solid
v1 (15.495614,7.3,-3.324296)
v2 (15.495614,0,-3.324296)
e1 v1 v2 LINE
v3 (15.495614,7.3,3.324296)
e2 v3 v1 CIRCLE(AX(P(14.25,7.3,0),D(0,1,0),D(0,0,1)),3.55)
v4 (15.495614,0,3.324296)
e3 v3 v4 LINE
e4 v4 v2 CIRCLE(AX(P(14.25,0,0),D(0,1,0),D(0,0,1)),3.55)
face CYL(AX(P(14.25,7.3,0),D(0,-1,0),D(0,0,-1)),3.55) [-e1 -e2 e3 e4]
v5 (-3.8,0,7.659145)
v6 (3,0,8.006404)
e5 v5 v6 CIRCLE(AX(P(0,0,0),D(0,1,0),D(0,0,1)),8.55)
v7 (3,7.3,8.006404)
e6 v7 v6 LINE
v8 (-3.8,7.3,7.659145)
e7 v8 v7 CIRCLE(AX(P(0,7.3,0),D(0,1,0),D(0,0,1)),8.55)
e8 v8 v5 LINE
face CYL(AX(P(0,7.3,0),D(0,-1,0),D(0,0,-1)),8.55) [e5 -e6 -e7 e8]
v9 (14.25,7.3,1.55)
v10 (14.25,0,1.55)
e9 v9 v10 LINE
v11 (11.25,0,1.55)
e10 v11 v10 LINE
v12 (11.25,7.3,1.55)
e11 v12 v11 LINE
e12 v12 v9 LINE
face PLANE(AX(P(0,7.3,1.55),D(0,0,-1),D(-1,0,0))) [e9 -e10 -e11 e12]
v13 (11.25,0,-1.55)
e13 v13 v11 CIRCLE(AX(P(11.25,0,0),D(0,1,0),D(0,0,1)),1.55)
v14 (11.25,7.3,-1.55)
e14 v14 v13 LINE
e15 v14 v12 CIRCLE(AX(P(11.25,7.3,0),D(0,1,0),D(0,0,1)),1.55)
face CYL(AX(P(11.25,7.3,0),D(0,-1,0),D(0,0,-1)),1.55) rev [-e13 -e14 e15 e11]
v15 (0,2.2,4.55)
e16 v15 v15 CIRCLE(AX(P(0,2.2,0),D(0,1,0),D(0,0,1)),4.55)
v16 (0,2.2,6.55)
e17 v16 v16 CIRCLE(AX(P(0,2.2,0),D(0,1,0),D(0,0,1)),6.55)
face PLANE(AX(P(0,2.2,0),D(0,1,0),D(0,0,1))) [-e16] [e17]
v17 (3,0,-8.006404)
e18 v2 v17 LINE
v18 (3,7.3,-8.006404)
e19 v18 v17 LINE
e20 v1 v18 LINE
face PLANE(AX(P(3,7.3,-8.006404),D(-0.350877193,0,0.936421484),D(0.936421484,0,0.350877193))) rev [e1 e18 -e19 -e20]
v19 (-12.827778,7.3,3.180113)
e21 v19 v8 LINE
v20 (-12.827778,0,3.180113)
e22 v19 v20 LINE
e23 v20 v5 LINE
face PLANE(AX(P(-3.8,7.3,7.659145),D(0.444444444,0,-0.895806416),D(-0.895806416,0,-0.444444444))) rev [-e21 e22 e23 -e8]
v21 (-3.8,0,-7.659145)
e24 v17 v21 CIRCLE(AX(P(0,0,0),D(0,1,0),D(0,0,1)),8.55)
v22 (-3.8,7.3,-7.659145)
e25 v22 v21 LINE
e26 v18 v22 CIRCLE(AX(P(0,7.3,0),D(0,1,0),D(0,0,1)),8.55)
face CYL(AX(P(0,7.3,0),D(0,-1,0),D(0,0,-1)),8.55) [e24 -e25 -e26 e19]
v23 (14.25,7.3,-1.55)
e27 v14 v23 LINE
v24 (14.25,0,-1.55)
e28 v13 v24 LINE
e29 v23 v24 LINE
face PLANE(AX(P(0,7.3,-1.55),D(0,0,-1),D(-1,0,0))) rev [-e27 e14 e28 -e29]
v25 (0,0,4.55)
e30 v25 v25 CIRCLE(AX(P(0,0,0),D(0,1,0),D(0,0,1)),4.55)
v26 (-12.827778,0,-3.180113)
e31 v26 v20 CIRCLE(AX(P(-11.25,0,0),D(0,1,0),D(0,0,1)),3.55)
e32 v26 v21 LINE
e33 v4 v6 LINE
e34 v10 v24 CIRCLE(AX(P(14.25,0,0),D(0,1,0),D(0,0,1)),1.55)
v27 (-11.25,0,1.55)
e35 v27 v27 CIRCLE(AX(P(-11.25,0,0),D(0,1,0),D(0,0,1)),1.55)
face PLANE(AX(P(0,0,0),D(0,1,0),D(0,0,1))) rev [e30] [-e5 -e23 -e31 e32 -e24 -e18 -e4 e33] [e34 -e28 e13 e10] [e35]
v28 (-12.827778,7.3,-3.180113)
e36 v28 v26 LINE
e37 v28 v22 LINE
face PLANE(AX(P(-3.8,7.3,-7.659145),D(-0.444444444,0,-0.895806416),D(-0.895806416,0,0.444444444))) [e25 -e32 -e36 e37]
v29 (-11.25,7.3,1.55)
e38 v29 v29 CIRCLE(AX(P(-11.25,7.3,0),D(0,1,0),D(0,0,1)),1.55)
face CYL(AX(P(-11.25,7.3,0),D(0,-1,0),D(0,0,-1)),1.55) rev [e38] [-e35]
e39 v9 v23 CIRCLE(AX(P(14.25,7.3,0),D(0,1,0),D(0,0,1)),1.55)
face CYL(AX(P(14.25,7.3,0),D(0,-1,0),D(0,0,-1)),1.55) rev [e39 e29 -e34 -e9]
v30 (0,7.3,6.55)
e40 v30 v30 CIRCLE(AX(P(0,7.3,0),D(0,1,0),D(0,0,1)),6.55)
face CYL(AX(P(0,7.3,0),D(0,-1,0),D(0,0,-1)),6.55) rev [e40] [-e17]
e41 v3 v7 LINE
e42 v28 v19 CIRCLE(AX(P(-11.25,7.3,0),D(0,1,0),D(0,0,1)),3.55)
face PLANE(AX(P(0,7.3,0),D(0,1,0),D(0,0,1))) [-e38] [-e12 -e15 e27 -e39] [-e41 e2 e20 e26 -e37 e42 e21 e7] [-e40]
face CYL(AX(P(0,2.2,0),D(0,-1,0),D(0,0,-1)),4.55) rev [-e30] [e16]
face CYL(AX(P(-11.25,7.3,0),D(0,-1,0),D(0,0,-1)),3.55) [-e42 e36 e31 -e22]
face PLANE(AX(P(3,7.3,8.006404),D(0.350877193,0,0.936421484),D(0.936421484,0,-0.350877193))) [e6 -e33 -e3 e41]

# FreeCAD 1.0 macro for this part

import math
import FreeCAD as App
import Part
import Sketcher

V = App.Vector

doc = App.newDocument("Part")
body = doc.addObject("PartDesign::Body", "Body")

# Sketch on XZ plane
sketch1 = body.newObject("Sketcher::SketchObject", "Sketch")
sketch1.AttachmentSupport = (doc.getObject("XZ_Plane"), [""])
sketch1.MapMode = "FlatFace"
sketch1.addGeometry([
    Part.ArcOfCircle(Part.Circle(V(0, 0, 0), V(0, 0, 1), 8.55), math.radians(-116), math.radians(-69)),  # 0
    Part.LineSegment(V(-3.8, -7.66, 0), V(-12.83, -3.18, 0)),  # 1
    Part.ArcOfCircle(Part.Circle(V(-11.25, 0, 0), V(0, 0, 1), 3.55), math.radians(116), math.radians(244)),  # 2
    Part.LineSegment(V(-12.83, 3.18, 0), V(-3.8, 7.66, 0)),  # 3
    Part.ArcOfCircle(Part.Circle(V(0, 0, 0), V(0, 0, 1), 8.55), math.radians(69), math.radians(116)),  # 4
    Part.LineSegment(V(3, 8.01, 0), V(15.5, 3.32, 0)),  # 5
    Part.ArcOfCircle(Part.Circle(V(14.25, 0, 0), V(0, 0, 1), 3.55), math.radians(-69), math.radians(69)),  # 6
    Part.LineSegment(V(15.5, -3.32, 0), V(3, -8.01, 0)),  # 7
    Part.ArcOfCircle(Part.Circle(V(14.25, 0, 0), V(0, 0, 1), 1.55), math.radians(69), math.radians(90)),  # 8
    Part.LineSegment(V(14.25, 1.55, 0), V(11.25, 1.55, 0)),  # 9
    Part.ArcOfCircle(Part.Circle(V(11.25, 0, 0), V(0, 0, 1), 1.55), math.radians(90), math.radians(223)),  # 10
    Part.ArcOfCircle(Part.Circle(V(11.25, 0, 0), V(0, 0, 1), 1.55), math.radians(-137), math.radians(-90)),  # 11
    Part.LineSegment(V(11.25, -1.55, 0), V(14.25, -1.55, 0)),  # 12
    Part.ArcOfCircle(Part.Circle(V(14.25, 0, 0), V(0, 0, 1), 1.55), math.radians(-90), math.radians(-69)),  # 13
    Part.ArcOfCircle(Part.Circle(V(14.25, 0, 0), V(0, 0, 1), 1.55), math.radians(-69), math.radians(69)),  # 14
    Part.ArcOfCircle(Part.Circle(V(-11.25, 0, 0), V(0, 0, 1), 1.55), math.radians(10), math.radians(116)),  # 15
    Part.ArcOfCircle(Part.Circle(V(-11.25, 0, 0), V(0, 0, 1), 1.55), math.radians(116), math.radians(244)),  # 16
    Part.ArcOfCircle(Part.Circle(V(-11.25, 0, 0), V(0, 0, 1), 1.55), math.radians(-116), math.radians(0)),  # 17
    Part.ArcOfCircle(Part.Circle(V(-11.25, 0, 0), V(0, 0, 1), 1.55), math.radians(0), math.radians(9.51)),  # 18
    Part.ArcOfCircle(Part.Circle(V(0, 0, 0), V(0, 0, 1), 6.55), math.radians(116), math.radians(162)),  # 19
    Part.ArcOfCircle(Part.Circle(V(0, 0, 0), V(0, 0, 1), 6.55), math.radians(162), math.radians(244)),  # 20
    Part.ArcOfCircle(Part.Circle(V(0, 0, 0), V(0, 0, 1), 6.55), math.radians(-116), math.radians(-69)),  # 21
    Part.ArcOfCircle(Part.Circle(V(0, 0, 0), V(0, 0, 1), 6.55), math.radians(-69), math.radians(-23)),  # 22
    Part.ArcOfCircle(Part.Circle(V(0, 0, 0), V(0, 0, 1), 6.55), math.radians(-23), math.radians(0)),  # 23
    Part.ArcOfCircle(Part.Circle(V(0, 0, 0), V(0, 0, 1), 6.55), math.radians(0), math.radians(69)),  # 24
    Part.ArcOfCircle(Part.Circle(V(0, 0, 0), V(0, 0, 1), 6.55), math.radians(69), math.radians(116)),  # 25
], False)
sketch1.addConstraint([
    Sketcher.Constraint("Tangent", 0, 1, 1, 1),
    Sketcher.Constraint("Tangent", 1, 2, 2, 2),
    Sketcher.Constraint("Tangent", 2, 1, 3, 1),
    Sketcher.Constraint("Tangent", 3, 2, 4, 2),
    Sketcher.Constraint("Tangent", 4, 1, 5, 1),
    Sketcher.Constraint("Tangent", 5, 2, 6, 2),
    Sketcher.Constraint("Tangent", 6, 1, 7, 1),
    Sketcher.Constraint("Tangent", 7, 2, 0, 2),
    Sketcher.Constraint("Tangent", 8, 2, 9, 1),
    Sketcher.Constraint("Tangent", 9, 2, 10, 1),
    Sketcher.Constraint("Tangent", 10, 2, 11, 1),
    Sketcher.Constraint("Tangent", 11, 2, 12, 1),
    Sketcher.Constraint("Tangent", 12, 2, 13, 1),
    Sketcher.Constraint("Tangent", 13, 2, 14, 1),
    Sketcher.Constraint("Tangent", 14, 2, 8, 1),
    Sketcher.Constraint("Tangent", 15, 2, 16, 1),
    Sketcher.Constraint("Tangent", 16, 2, 17, 1),
    Sketcher.Constraint("Tangent", 17, 2, 18, 1),
    Sketcher.Constraint("Tangent", 18, 2, 15, 1),
    Sketcher.Constraint("Tangent", 19, 2, 20, 1),
    Sketcher.Constraint("Tangent", 20, 2, 21, 1),
    Sketcher.Constraint("Tangent", 21, 2, 22, 1),
    Sketcher.Constraint("Tangent", 22, 2, 23, 1),
    Sketcher.Constraint("Tangent", 23, 2, 24, 1),
    Sketcher.Constraint("Tangent", 24, 2, 25, 1),
    Sketcher.Constraint("Tangent", 25, 2, 19, 1),
    Sketcher.Constraint("Horizontal", 9),
    Sketcher.Constraint("Horizontal", 12),
    Sketcher.Constraint("Coincident", 0, 3, -1, 1),
    Sketcher.Constraint("Coincident", 4, 3, -1, 1),
    Sketcher.Constraint("Coincident", 19, 3, -1, 1),
    Sketcher.Constraint("Coincident", 21, 3, -1, 1),
    Sketcher.Constraint("Coincident", 23, 3, -1, 1),
    Sketcher.Constraint("Coincident", 8, 3, 6, 3),
    Sketcher.Constraint("Coincident", 13, 3, 6, 3),
    Sketcher.Constraint("Coincident", 15, 3, 2, 3),
    Sketcher.Constraint("Equal", 0, 4),
    Sketcher.Constraint("Equal", 2, 6),
    Sketcher.Constraint("Equal", 8, 10),
    Sketcher.Constraint("Equal", 14, 15),
    Sketcher.Constraint("Equal", 15, 16),
    Sketcher.Constraint("Symmetric", 2, 3, 10, 3, -1, 1),
    Sketcher.Constraint("Symmetric", 13, 2, 14, 2, -1),
    Sketcher.Constraint("PointOnObject", 17, 2, -1),
    Sketcher.Constraint("PointOnObject", 23, 2, -1),
    Sketcher.Constraint("Vertical", 15, 2, 16, 2),
    Sketcher.Constraint("Vertical", 21, 2, 24, 2),
    Sketcher.Constraint("Vertical", 20, 2, 25, 2),
    Sketcher.Constraint("DistanceX", 9, 2, 9, 1, 3.0),
    Sketcher.Constraint("Radius", 0, 8.55),
    Sketcher.Constraint("Radius", 2, 3.55),
    Sketcher.Constraint("Radius", 8, 1.55),
    Sketcher.Constraint("Radius", 19, 6.55),
    Sketcher.Constraint("DistanceX", -1, 1, 4, 1, 3.0),
    Sketcher.Constraint("DistanceY", -1, 1, 15, 2, 1.3885),
    Sketcher.Constraint("DistanceX", -1, 1, 10, 2, 10.12419),
    Sketcher.Constraint("DistanceX", -1, 1, 13, 2, 14.79386),
    Sketcher.Constraint("DistanceX", 20, 2, -1, 1, 2.911111),
    Sketcher.Constraint("DistanceY", 21, 2, -1, 1, 6.133561),
    Sketcher.Constraint("DistanceY", 18, 2, 19, 2, 1.725731),
    Sketcher.Constraint("DistanceX", 21, 2, 22, 2, 3.710371),
    Sketcher.Constraint("DistanceX", 19, 2, 25, 2, 3.331871),
])
pad1 = body.newObject("PartDesign::Pad", "Pad")
pad1.Profile = sketch1
pad1.Length = 7.3
pad1.Reversed = True

# Sketch on XZ plane
sketch2 = body.newObject("Sketcher::SketchObject", "Sketch001")
sketch2.AttachmentSupport = (doc.getObject("XZ_Plane"), [""])
sketch2.MapMode = "FlatFace"
sketch2.addGeometry([
    Part.ArcOfCircle(Part.Circle(V(0, 0, 0), V(0, 0, 1), 6.5), math.radians(69), math.radians(116)),  # 0
    Part.ArcOfCircle(Part.Circle(V(0, 0, 0), V(0, 0, 1), 6.5), math.radians(0), math.radians(69)),  # 1
    Part.ArcOfCircle(Part.Circle(V(0, 0, 0), V(0, 0, 1), 6.5), math.radians(-23), math.radians(0)),  # 2
    Part.ArcOfCircle(Part.Circle(V(0, 0, 0), V(0, 0, 1), 6.5), math.radians(-69), math.radians(-23)),  # 3
    Part.ArcOfCircle(Part.Circle(V(0, 0, 0), V(0, 0, 1), 6.5), math.radians(-116), math.radians(-69)),  # 4
    Part.ArcOfCircle(Part.Circle(V(0, 0, 0), V(0, 0, 1), 6.6), math.radians(162), math.radians(244)),  # 5
    Part.ArcOfCircle(Part.Circle(V(0, 0, 0), V(0, 0, 1), 6.5), math.radians(116), math.radians(162)),  # 6
    Part.ArcOfCircle(Part.Circle(V(0, 0, 0), V(0, 0, 1), 4.5), math.radians(0), math.radians(116)),  # 7
    Part.ArcOfCircle(Part.Circle(V(0, 0, 0), V(0, 0, 1), 4.5), math.radians(116), math.radians(291)),  # 8
    Part.ArcOfCircle(Part.Circle(V(0, 0, 0), V(0, 0, 1), 4.5), math.radians(-69), math.radians(0)),  # 9
], False)
sketch2.addConstraint([
    Sketcher.Constraint("Tangent", 0, 1, 1, 2),
    Sketcher.Constraint("Tangent", 1, 1, 2, 2),
    Sketcher.Constraint("Tangent", 2, 1, 3, 2),
    Sketcher.Constraint("Tangent", 3, 1, 4, 2),
    Sketcher.Constraint("Tangent", 4, 1, 5, 2),
    Sketcher.Constraint("Tangent", 5, 1, 6, 2),
    Sketcher.Constraint("Tangent", 6, 1, 0, 2),
    Sketcher.Constraint("Tangent", 7, 2, 8, 1),
    Sketcher.Constraint("Tangent", 8, 2, 9, 1),
    Sketcher.Constraint("Tangent", 9, 2, 7, 1),
    Sketcher.Constraint("Coincident", 0, 3, -1, 1),
    Sketcher.Constraint("Coincident", 2, 3, -1, 1),
    Sketcher.Constraint("Coincident", 4, 3, -1, 1),
    Sketcher.Constraint("Coincident", 7, 3, -1, 1),
    Sketcher.Constraint("PointOnObject", 1, 1, -1),
    Sketcher.Constraint("PointOnObject", 9, 2, -1),
    Sketcher.Constraint("Vertical", 0, 1, 3, 1),
    Sketcher.Constraint("Vertical", 4, 1, 6, 1),
    Sketcher.Constraint("Radius", 0, 6.55),
    Sketcher.Constraint("Radius", 7, 4.55),
    Sketcher.Constraint("DistanceY", -1, 1, 0, 1, 6.133561),
    Sketcher.Constraint("DistanceX", 4, 1, -1, 1, 2.911111),
    Sketcher.Constraint("DistanceY", -1, 1, 7, 2, 4.075919),
    Sketcher.Constraint("DistanceX", -1, 1, 8, 2, 1.596491),
    Sketcher.Constraint("DistanceX", 3, 1, 2, 1, 3.710371),
    Sketcher.Constraint("DistanceX", 5, 1, 6, 1, 3.331871),
])
pad2 = body.newObject("PartDesign::Pad", "Pad001")
pad2.Profile = sketch2
pad2.Length = 2.2
pad2.Reversed = True

doc.recompute()
